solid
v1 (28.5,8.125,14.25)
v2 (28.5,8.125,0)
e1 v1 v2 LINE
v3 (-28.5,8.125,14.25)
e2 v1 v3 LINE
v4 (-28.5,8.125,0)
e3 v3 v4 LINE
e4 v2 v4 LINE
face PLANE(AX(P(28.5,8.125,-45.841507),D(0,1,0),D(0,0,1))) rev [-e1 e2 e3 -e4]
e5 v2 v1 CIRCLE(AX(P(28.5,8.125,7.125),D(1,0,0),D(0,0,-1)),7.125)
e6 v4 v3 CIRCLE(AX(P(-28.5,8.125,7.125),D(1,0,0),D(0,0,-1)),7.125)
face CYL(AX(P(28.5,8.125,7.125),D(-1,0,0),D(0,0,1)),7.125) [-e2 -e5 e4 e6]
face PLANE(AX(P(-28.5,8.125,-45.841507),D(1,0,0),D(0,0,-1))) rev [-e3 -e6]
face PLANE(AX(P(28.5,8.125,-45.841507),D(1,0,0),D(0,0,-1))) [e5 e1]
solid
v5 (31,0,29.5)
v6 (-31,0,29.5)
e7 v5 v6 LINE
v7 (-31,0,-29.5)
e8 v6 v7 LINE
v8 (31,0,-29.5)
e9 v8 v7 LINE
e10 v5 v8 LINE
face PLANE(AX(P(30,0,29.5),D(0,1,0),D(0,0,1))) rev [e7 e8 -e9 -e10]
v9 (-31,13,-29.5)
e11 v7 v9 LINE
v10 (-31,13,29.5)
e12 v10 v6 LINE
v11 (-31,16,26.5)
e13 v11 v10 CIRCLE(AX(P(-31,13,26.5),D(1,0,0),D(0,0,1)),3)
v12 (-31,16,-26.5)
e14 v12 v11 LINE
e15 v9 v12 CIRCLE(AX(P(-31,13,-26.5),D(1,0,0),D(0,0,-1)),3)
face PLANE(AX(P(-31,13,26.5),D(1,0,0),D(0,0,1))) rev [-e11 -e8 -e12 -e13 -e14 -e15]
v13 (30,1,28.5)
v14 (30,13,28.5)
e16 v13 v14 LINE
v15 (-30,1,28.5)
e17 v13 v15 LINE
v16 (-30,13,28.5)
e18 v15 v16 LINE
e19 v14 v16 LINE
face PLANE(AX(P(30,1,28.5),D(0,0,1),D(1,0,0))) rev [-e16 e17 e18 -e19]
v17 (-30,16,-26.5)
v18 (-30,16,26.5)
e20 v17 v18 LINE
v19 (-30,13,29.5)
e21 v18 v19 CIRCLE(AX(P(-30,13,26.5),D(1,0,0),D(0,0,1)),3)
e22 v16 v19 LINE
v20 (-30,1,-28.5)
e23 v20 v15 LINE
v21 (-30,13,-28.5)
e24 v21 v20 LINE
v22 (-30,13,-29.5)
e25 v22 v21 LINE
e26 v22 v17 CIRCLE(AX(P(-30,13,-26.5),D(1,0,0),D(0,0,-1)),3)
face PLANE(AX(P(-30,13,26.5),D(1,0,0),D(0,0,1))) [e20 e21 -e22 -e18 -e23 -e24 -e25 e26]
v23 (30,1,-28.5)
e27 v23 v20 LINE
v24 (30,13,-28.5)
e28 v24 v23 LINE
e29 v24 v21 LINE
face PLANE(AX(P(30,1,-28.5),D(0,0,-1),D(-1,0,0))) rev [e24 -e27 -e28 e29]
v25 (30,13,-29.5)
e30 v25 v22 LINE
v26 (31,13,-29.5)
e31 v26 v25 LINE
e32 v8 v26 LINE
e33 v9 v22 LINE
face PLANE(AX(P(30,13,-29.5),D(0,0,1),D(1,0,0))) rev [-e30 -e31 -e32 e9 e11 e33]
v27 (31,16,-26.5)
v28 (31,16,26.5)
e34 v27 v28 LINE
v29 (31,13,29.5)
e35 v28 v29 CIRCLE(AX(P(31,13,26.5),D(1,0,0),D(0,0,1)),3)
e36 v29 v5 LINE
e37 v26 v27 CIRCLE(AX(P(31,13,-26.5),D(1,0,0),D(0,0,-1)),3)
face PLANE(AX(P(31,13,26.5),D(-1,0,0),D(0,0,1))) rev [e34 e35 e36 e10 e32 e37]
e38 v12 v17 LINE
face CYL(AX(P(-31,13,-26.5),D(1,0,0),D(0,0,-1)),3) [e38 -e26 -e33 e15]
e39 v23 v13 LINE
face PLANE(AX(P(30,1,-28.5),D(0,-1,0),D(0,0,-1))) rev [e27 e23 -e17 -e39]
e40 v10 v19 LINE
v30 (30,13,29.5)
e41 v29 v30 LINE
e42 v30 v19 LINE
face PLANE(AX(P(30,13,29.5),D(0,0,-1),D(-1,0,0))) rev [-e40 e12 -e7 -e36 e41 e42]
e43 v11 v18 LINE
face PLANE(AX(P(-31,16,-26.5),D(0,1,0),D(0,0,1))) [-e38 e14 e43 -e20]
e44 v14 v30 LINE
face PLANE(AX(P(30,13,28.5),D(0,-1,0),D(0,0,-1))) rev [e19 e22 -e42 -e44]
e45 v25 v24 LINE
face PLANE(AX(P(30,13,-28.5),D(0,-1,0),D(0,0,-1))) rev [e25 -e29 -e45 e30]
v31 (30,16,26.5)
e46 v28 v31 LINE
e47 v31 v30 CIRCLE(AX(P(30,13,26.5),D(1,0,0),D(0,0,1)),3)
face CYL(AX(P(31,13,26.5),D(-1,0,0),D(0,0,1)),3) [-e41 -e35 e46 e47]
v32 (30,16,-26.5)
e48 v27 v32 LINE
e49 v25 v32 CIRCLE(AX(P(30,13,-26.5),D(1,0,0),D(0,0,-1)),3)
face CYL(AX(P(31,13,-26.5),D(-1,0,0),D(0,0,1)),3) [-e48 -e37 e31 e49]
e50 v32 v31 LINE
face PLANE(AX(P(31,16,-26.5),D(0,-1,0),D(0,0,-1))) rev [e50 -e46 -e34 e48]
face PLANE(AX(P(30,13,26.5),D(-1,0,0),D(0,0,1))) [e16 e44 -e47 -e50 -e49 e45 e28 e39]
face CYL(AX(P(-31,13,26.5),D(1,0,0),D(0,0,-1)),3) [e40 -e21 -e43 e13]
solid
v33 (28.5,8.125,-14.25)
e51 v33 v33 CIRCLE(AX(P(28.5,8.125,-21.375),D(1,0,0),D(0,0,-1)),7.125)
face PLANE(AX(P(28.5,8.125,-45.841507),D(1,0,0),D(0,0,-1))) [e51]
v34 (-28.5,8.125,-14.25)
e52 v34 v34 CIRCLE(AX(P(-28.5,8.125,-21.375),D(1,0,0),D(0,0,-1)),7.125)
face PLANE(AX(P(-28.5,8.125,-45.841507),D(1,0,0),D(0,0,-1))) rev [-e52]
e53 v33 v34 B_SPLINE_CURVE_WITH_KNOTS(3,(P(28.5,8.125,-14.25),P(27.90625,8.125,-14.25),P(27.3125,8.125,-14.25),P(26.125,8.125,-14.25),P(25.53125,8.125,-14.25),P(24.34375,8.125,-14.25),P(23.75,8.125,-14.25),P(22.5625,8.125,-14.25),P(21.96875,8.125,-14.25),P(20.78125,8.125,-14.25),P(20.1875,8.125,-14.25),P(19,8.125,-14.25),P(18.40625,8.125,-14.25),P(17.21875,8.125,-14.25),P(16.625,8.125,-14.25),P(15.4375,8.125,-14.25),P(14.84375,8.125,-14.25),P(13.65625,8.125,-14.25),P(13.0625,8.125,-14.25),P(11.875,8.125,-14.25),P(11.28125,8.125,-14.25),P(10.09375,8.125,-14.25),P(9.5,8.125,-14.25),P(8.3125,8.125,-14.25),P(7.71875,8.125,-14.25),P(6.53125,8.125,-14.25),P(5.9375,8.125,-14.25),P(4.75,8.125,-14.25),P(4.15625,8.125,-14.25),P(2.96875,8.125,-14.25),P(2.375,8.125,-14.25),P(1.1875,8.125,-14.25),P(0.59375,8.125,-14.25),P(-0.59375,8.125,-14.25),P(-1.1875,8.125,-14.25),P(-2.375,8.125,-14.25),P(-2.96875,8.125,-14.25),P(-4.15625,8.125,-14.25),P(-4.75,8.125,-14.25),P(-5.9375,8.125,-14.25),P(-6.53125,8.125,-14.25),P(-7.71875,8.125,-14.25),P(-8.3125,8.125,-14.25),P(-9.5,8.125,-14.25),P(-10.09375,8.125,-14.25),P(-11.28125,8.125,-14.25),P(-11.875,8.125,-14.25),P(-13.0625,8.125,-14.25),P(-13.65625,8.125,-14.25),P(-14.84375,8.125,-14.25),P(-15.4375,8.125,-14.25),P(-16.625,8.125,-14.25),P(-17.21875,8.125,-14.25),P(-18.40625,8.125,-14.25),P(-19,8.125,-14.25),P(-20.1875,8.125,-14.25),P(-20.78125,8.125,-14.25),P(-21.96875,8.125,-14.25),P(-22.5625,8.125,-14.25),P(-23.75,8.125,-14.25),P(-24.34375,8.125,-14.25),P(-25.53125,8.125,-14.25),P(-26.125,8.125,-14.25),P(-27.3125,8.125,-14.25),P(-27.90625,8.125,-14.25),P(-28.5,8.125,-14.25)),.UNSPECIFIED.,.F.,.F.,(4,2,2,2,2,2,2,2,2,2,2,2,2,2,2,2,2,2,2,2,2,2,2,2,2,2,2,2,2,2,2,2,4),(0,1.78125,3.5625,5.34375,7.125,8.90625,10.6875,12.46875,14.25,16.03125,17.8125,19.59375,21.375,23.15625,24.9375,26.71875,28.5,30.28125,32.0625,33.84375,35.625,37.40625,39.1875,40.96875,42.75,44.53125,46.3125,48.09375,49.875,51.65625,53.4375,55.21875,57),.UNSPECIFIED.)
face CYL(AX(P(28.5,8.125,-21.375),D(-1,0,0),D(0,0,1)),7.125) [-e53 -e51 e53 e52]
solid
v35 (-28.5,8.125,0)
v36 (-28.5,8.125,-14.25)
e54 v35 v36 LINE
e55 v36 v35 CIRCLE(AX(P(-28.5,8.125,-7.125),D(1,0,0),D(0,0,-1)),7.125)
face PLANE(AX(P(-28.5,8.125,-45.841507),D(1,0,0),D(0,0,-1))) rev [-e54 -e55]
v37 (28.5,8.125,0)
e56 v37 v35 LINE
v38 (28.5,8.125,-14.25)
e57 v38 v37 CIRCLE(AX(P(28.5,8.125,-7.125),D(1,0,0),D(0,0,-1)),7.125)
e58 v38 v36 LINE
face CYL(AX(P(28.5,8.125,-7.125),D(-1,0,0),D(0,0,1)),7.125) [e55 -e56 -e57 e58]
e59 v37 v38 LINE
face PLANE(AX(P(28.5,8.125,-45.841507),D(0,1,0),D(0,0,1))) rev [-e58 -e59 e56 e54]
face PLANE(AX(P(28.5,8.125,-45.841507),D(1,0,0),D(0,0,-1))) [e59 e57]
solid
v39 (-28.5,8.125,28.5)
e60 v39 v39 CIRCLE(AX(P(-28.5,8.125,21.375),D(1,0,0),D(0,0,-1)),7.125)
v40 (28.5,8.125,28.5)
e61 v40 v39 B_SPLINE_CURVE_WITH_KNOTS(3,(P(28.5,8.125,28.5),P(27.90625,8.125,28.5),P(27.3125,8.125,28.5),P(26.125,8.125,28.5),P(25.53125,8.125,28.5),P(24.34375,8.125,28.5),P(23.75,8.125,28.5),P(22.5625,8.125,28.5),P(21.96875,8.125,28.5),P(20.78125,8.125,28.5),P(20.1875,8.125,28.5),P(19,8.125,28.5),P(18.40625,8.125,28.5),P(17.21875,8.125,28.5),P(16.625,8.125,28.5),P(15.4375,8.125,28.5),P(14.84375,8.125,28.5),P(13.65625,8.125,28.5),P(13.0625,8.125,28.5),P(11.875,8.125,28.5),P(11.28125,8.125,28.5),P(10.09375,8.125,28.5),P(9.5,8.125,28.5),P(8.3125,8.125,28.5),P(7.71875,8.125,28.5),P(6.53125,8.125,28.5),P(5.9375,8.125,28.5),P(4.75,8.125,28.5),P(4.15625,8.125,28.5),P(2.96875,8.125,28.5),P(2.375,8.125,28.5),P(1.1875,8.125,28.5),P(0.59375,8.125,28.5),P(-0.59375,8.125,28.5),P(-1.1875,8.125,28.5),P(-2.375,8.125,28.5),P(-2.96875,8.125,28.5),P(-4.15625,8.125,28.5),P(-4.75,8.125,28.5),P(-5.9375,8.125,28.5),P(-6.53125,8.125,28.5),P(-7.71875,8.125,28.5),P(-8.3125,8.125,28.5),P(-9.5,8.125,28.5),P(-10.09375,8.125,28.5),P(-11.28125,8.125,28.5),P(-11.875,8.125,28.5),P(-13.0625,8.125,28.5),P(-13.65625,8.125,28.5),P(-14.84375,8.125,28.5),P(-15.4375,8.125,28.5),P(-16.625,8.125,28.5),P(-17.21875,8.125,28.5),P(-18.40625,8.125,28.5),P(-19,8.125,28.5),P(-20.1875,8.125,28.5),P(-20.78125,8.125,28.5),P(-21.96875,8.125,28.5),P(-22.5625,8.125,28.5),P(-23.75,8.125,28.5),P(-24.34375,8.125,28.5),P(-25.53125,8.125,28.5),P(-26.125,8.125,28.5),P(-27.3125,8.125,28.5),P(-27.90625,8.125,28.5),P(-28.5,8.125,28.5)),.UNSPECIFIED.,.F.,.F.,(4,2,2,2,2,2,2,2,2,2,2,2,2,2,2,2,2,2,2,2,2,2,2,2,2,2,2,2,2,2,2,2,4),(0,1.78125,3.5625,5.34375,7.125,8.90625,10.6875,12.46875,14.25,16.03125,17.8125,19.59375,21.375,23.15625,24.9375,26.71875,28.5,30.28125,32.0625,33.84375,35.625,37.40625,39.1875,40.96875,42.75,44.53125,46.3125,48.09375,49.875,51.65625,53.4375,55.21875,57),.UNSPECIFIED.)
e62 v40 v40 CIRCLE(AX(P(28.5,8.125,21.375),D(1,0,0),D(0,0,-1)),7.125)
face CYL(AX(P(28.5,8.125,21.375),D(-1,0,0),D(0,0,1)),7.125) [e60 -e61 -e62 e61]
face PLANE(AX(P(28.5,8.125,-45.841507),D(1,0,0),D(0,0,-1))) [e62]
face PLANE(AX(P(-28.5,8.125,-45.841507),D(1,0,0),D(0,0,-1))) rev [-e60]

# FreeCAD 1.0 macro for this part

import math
import FreeCAD as App
import Part
import Sketcher
from FreeCAD import Vector
Q = App.Units.Quantity


def add_polygon(sketch, points):
    """Adds a closed chain of lines whose ends are joined by coincident constraints."""
    first, n = sketch.GeometryCount, len(points)
    for a, b in zip(points, points[1:] + points[:1]):
        sketch.addGeometry(Part.LineSegment(App.Vector(*a, 0), App.Vector(*b, 0)), False)
    for i in range(n):
        sketch.addConstraint(Sketcher.Constraint("Coincident", first + i, 2, first + (i + 1) % n, 1))

doc = App.newDocument("Part")
body = doc.addObject("PartDesign::Body", "Body")

sketch1 = body.newObject("Sketcher::SketchObject", "Sketch")
sketch1.AttachmentSupport = (doc.getObject("YZ_Plane"), [""])
sketch1.MapMode = "FlatFace"
add_polygon(sketch1, [(0, -29.5), (13, -29.5), (13, -28.5), (1, -28.5), (1, 28.5), (13, 28.5), (13, 29.5), (0, 29.5)])
sketch1.addConstraint(Sketcher.Constraint("Horizontal", 0))
sketch1.addConstraint(Sketcher.Constraint("Vertical", 1))
sketch1.addConstraint(Sketcher.Constraint("Horizontal", 2))
sketch1.addConstraint(Sketcher.Constraint("Vertical", 3))
sketch1.addConstraint(Sketcher.Constraint("Horizontal", 4))
sketch1.addConstraint(Sketcher.Constraint("Vertical", 5))
sketch1.addConstraint(Sketcher.Constraint("Horizontal", 6))
sketch1.addConstraint(Sketcher.Constraint("Vertical", 7))
sketch1.addConstraint(Sketcher.Constraint("Symmetric", 6, 2, 7, 2, -1, 1))
sketch1.addConstraint(Sketcher.Constraint("Symmetric", 1, 2, 4, 2, -1))
sketch1.addConstraint(Sketcher.Constraint("DistanceX", 0, 1, 0, 2, Q("13 mm")))
sketch1.addConstraint(Sketcher.Constraint("DistanceX", 2, 2, 2, 1, Q("12 mm")))
sketch1.addConstraint(Sketcher.Constraint("DistanceY", 1, 1, 1, 2, Q("1 mm")))
sketch1.addConstraint(Sketcher.Constraint("DistanceY", 3, 1, 3, 2, Q("57 mm")))
pad1 = body.newObject("PartDesign::Pad", "Pad")
pad1.Profile = sketch1
pad1.Length = 30

sketch2 = body.newObject("Sketcher::SketchObject", "Sketch001")
sketch2.AttachmentSupport = (doc.getObject("YZ_Plane"), [""])
sketch2.MapMode = "FlatFace"
sketch2.AttachmentOffset = App.Placement(Vector(0, 0, 30), App.Rotation())
sketch2.addGeometry(Part.LineSegment(Vector(0, 29.5, 0), Vector(0, -29.5, 0)), False)
sketch2.addGeometry(Part.LineSegment(Vector(0, -29.5, 0), Vector(13, -29.5, 0)), False)
sketch2.addGeometry(Part.ArcOfCircle(Part.Circle(Vector(13, -26.5, 0), Vector(0, 0, 1), 3), math.radians(-90), math.radians(0)), False)
sketch2.addGeometry(Part.LineSegment(Vector(16, -26.5, 0), Vector(16, 26.5, 0)), False)
sketch2.addGeometry(Part.ArcOfCircle(Part.Circle(Vector(13, 26.5, 0), Vector(0, 0, 1), 3), math.radians(0), math.radians(90)), False)
sketch2.addGeometry(Part.LineSegment(Vector(13, 29.5, 0), Vector(0, 29.5, 0)), False)
sketch2.addConstraint(Sketcher.Constraint("Coincident", 0, 2, 1, 1))
sketch2.addConstraint(Sketcher.Constraint("Tangent", 1, 2, 2, 1))
sketch2.addConstraint(Sketcher.Constraint("Tangent", 2, 2, 3, 1))
sketch2.addConstraint(Sketcher.Constraint("Tangent", 3, 2, 4, 1))
sketch2.addConstraint(Sketcher.Constraint("Tangent", 4, 2, 5, 1))
sketch2.addConstraint(Sketcher.Constraint("Coincident", 5, 2, 0, 1))
sketch2.addConstraint(Sketcher.Constraint("Vertical", 0))
sketch2.addConstraint(Sketcher.Constraint("Horizontal", 1))
sketch2.addConstraint(Sketcher.Constraint("Vertical", 3))
sketch2.addConstraint(Sketcher.Constraint("Horizontal", 5))
sketch2.addConstraint(Sketcher.Constraint("Equal", 2, 4))
sketch2.addConstraint(Sketcher.Constraint("Symmetric", 0, 2, 5, 2, -1, 1))
sketch2.addConstraint(Sketcher.Constraint("Radius", 2, Q("3 mm")))
sketch2.addConstraint(Sketcher.Constraint("DistanceX", 1, 1, 1, 2, Q("13 mm")))
sketch2.addConstraint(Sketcher.Constraint("DistanceY", 0, 2, 0, 1, Q("59 mm")))
pad2 = body.newObject("PartDesign::Pad", "Pad001")
pad2.Profile = sketch2
pad2.Length = 1
doc.recompute()

mirrored = body.newObject("PartDesign::Mirrored", "Mirrored")
mirrored.Originals = [pad1, pad2]
mirrored.MirrorPlane = (doc.getObject("YZ_Plane"), [""])
body.Tip = mirrored
body2 = doc.addObject("PartDesign::Body", "Body001")

sketch3 = body2.newObject("Sketcher::SketchObject", "Sketch002")
sketch3.AttachmentSupport = (doc.getObject("YZ_Plane001"), [""])
sketch3.MapMode = "FlatFace"
sketch3.addGeometry(Part.ArcOfCircle(Part.Circle(Vector(8.125, 7.125, 0), Vector(0, 0, 1), 7.125), math.radians(-90), math.radians(90)), False)
sketch3.addGeometry(Part.LineSegment(Vector(8.125, 14.25, 0), Vector(8.125, 0, 0)), False)
sketch3.addConstraint(Sketcher.Constraint("Coincident", 0, 1, 1, 2))
sketch3.addConstraint(Sketcher.Constraint("Coincident", 1, 1, 0, 2))
sketch3.addConstraint(Sketcher.Constraint("Vertical", 1))
sketch3.addConstraint(Sketcher.Constraint("PointOnObject", 0, 1, -1))
sketch3.addConstraint(Sketcher.Constraint("Radius", 0, Q("7.125 mm")))
sketch3.addConstraint(Sketcher.Constraint("DistanceX", -1, 1, 0, 3, Q("8.125 mm")))
sketch3.addConstraint(Sketcher.Constraint("DistanceX", -1, 1, 0, 1, Q("8.125 mm")))
pad3 = body2.newObject("PartDesign::Pad", "Pad002")
pad3.Profile = sketch3
pad3.Length = 57
pad3.Midplane = True
body3 = doc.addObject("PartDesign::Body", "Body002")

sketch4 = body3.newObject("Sketcher::SketchObject", "Sketch003")
sketch4.AttachmentSupport = (doc.getObject("YZ_Plane002"), [""])
sketch4.MapMode = "FlatFace"
sketch4.addGeometry(Part.Circle(Vector(8.125, 21.375, 0), Vector(0, 0, 1), 7.125), False)
sketch4.addConstraint(Sketcher.Constraint("Diameter", 0, Q("14.25 mm")))
sketch4.addConstraint(Sketcher.Constraint("DistanceX", -1, 1, 0, 3, Q("8.125 mm")))
sketch4.addConstraint(Sketcher.Constraint("DistanceY", -1, 1, 0, 3, Q("21.375 mm")))
pad4 = body3.newObject("PartDesign::Pad", "Pad003")
pad4.Profile = sketch4
pad4.Length = 57
pad4.Midplane = True
body4 = doc.addObject("PartDesign::Body", "Body003")

sketch5 = body4.newObject("Sketcher::SketchObject", "Sketch004")
sketch5.AttachmentSupport = (doc.getObject("YZ_Plane003"), [""])
sketch5.MapMode = "FlatFace"
sketch5.addGeometry(Part.Circle(Vector(8.125, -21.375, 0), Vector(0, 0, 1), 7.125), False)
sketch5.addConstraint(Sketcher.Constraint("Diameter", 0, Q("14.25 mm")))
sketch5.addConstraint(Sketcher.Constraint("DistanceX", -1, 1, 0, 3, Q("8.125 mm")))
sketch5.addConstraint(Sketcher.Constraint("DistanceY", 0, 3, -1, 1, Q("21.375 mm")))
pad5 = body4.newObject("PartDesign::Pad", "Pad004")
pad5.Profile = sketch5
pad5.Length = 57
pad5.Midplane = True
body5 = doc.addObject("PartDesign::Body", "Body004")

sketch6 = body5.newObject("Sketcher::SketchObject", "Sketch005")
sketch6.AttachmentSupport = (doc.getObject("YZ_Plane004"), [""])
sketch6.MapMode = "FlatFace"
sketch6.addGeometry(Part.ArcOfCircle(Part.Circle(Vector(8.125, -7.125, 0), Vector(0, 0, 1), 7.125), math.radians(-90), math.radians(90)), False)
sketch6.addGeometry(Part.LineSegment(Vector(8.125, 0, 0), Vector(8.125, -14.25, 0)), False)
sketch6.addConstraint(Sketcher.Constraint("Coincident", 0, 1, 1, 2))
sketch6.addConstraint(Sketcher.Constraint("Coincident", 1, 1, 0, 2))
sketch6.addConstraint(Sketcher.Constraint("Vertical", 1))
sketch6.addConstraint(Sketcher.Constraint("PointOnObject", 1, 1, -1))
sketch6.addConstraint(Sketcher.Constraint("Radius", 0, Q("7.125 mm")))
sketch6.addConstraint(Sketcher.Constraint("DistanceX", -1, 1, 0, 3, Q("8.125 mm")))
sketch6.addConstraint(Sketcher.Constraint("DistanceX", -1, 1, 0, 1, Q("8.125 mm")))
pad6 = body5.newObject("PartDesign::Pad", "Pad005")
pad6.Profile = sketch6
pad6.Length = 57
pad6.Midplane = True

doc.recompute()
